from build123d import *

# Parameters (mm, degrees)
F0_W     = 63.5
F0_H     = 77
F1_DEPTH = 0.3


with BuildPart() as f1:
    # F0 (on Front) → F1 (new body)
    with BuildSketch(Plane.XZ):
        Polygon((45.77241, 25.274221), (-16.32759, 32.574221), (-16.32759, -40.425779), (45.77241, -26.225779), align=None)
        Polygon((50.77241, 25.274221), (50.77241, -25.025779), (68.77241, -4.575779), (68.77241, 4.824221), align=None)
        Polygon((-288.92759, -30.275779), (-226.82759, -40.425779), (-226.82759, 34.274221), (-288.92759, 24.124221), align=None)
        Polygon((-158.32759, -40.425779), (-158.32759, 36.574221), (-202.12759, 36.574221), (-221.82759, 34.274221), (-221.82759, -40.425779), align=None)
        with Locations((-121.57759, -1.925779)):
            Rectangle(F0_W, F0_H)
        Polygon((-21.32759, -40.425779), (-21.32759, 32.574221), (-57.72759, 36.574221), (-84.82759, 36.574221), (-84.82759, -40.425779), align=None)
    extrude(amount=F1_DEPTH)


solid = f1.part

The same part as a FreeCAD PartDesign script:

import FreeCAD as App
import Part
import Sketcher
from FreeCAD import Vector
Q = App.Units.Quantity


def add_polygon(sketch, points):
    """Adds a closed chain of lines whose ends are joined by coincident constraints."""
    first, n = sketch.GeometryCount, len(points)
    for a, b in zip(points, points[1:] + points[:1]):
        sketch.addGeometry(Part.LineSegment(App.Vector(*a, 0), App.Vector(*b, 0)), False)
    for i in range(n):
        sketch.addConstraint(Sketcher.Constraint("Coincident", first + i, 2, first + (i + 1) % n, 1))

doc = App.newDocument("Part")
body = doc.addObject("PartDesign::Body", "Body")
body.AllowCompound = True

# Sketch on XZ plane
sketch1 = body.newObject("Sketcher::SketchObject", "Sketch")
sketch1.AttachmentSupport = (doc.getObject("XZ_Plane"), [""])
sketch1.MapMode = "FlatFace"
add_polygon(sketch1, [(46, 25), (-16, 33), (-16, -40), (46, -26)])  # lines 0-3
add_polygon(sketch1, [(51, 25), (51, -25), (69, -5), (69, 5)])  # lines 4-7
add_polygon(sketch1, [(-289, -30), (-227, -40), (-227, 34), (-289, 24)])  # lines 8-11
add_polygon(sketch1, [(-158, -40), (-158, 37), (-202, 37), (-222, 34), (-222, -40)])  # lines 12-16
add_polygon(sketch1, [(-153, 37), (-153, -40), (-90, -40), (-90, 37)])  # lines 17-20
add_polygon(sketch1, [(-21, -40), (-21, 33), (-58, 37), (-85, 37), (-85, -40)])  # lines 21-25
sketch1.addConstraint([
    Sketcher.Constraint("Vertical", 1),
    Sketcher.Constraint("Vertical", 3),
    Sketcher.Constraint("Vertical", 4),
    Sketcher.Constraint("Vertical", 6),
    Sketcher.Constraint("Vertical", 9),
    Sketcher.Constraint("Vertical", 11),
    Sketcher.Constraint("Vertical", 12),
    Sketcher.Constraint("Horizontal", 13),
    Sketcher.Constraint("Vertical", 15),
    Sketcher.Constraint("Horizontal", 16),
    Sketcher.Constraint("Vertical", 17),
    Sketcher.Constraint("Horizontal", 18),
    Sketcher.Constraint("Vertical", 19),
    Sketcher.Constraint("Horizontal", 20),
    Sketcher.Constraint("Vertical", 21),
    Sketcher.Constraint("Horizontal", 23),
    Sketcher.Constraint("Vertical", 24),
    Sketcher.Constraint("Horizontal", 25),
    Sketcher.Constraint("Horizontal", 3, 2, 7, 2),
    Sketcher.Constraint("Horizontal", 1, 2, 8, 2),
    Sketcher.Constraint("Horizontal", 9, 2, 14, 2),
    Sketcher.Constraint("Horizontal", 8, 2, 15, 2),
    Sketcher.Constraint("Horizontal", 16, 2, 17, 2),
    Sketcher.Constraint("Horizontal", 13, 2, 19, 2),
    Sketcher.Constraint("Horizontal", 0, 2, 21, 2),
    Sketcher.Constraint("Horizontal", 20, 2, 22, 2),
    Sketcher.Constraint("Horizontal", 18, 2, 24, 2),
    Sketcher.Constraint("Equal", 16, 18),
    Sketcher.Constraint("Equal", 20, 25),
    Sketcher.Constraint("Equal", 5, 7),
    Sketcher.Constraint("Equal", 8, 10),
    Sketcher.Constraint("DistanceY", 1, 2, 1, 1, Q("73 mm")),
    Sketcher.Constraint("DistanceY", 12, 1, 12, 2, Q("77 mm")),
    Sketcher.Constraint("DistanceX", 13, 2, 13, 1, Q("43.8 mm")),
    Sketcher.Constraint("DistanceX", 16, 1, 16, 2, Q("63.5 mm")),
    Sketcher.Constraint("DistanceX", 23, 2, 23, 1, Q("27.1 mm")),
    Sketcher.Constraint("DistanceY", 3, 1, 3, 2, Q("51.5 mm")),
    Sketcher.Constraint("DistanceY", 4, 2, 4, 1, Q("50.3 mm")),
    Sketcher.Constraint("DistanceY", 6, 1, 6, 2, Q("9.4 mm")),
    Sketcher.Constraint("DistanceY", 9, 1, 9, 2, Q("74.7 mm")),
    Sketcher.Constraint("DistanceY", 11, 2, 11, 1, Q("54.4 mm")),
    Sketcher.Constraint("DistanceX", 2, 2, 4, 2, Q("5 mm")),
    Sketcher.Constraint("DistanceX", 4, 2, 5, 2, Q("18 mm")),
    Sketcher.Constraint("DistanceY", 3, 2, 9, 2, Q("9 mm")),
    Sketcher.Constraint("DistanceX", 12, 2, 0, 2, Q("142 mm")),
    Sketcher.Constraint("DistanceX", 9, 2, 14, 2, Q("5 mm")),
    Sketcher.Constraint("DistanceX", 16, 2, 17, 2, Q("5 mm")),
    Sketcher.Constraint("DistanceX", 21, 2, 0, 2, Q("5 mm")),
    Sketcher.Constraint("Angle", 2, Q("12.880012 deg")),
    Sketcher.Constraint("DistanceX", 10, 2, 9, 2, Q("62.1 mm")),
    Sketcher.Constraint("DistanceX", 0, 2, -1, 1, Q("16.32759 mm")),
    Sketcher.Constraint("DistanceY", -1, 1, 0, 2, Q("32.574221 mm")),
])
pad1 = body.newObject("PartDesign::Pad", "Pad")
pad1.Profile = sketch1
pad1.Length = 0.3

doc.recompute()
